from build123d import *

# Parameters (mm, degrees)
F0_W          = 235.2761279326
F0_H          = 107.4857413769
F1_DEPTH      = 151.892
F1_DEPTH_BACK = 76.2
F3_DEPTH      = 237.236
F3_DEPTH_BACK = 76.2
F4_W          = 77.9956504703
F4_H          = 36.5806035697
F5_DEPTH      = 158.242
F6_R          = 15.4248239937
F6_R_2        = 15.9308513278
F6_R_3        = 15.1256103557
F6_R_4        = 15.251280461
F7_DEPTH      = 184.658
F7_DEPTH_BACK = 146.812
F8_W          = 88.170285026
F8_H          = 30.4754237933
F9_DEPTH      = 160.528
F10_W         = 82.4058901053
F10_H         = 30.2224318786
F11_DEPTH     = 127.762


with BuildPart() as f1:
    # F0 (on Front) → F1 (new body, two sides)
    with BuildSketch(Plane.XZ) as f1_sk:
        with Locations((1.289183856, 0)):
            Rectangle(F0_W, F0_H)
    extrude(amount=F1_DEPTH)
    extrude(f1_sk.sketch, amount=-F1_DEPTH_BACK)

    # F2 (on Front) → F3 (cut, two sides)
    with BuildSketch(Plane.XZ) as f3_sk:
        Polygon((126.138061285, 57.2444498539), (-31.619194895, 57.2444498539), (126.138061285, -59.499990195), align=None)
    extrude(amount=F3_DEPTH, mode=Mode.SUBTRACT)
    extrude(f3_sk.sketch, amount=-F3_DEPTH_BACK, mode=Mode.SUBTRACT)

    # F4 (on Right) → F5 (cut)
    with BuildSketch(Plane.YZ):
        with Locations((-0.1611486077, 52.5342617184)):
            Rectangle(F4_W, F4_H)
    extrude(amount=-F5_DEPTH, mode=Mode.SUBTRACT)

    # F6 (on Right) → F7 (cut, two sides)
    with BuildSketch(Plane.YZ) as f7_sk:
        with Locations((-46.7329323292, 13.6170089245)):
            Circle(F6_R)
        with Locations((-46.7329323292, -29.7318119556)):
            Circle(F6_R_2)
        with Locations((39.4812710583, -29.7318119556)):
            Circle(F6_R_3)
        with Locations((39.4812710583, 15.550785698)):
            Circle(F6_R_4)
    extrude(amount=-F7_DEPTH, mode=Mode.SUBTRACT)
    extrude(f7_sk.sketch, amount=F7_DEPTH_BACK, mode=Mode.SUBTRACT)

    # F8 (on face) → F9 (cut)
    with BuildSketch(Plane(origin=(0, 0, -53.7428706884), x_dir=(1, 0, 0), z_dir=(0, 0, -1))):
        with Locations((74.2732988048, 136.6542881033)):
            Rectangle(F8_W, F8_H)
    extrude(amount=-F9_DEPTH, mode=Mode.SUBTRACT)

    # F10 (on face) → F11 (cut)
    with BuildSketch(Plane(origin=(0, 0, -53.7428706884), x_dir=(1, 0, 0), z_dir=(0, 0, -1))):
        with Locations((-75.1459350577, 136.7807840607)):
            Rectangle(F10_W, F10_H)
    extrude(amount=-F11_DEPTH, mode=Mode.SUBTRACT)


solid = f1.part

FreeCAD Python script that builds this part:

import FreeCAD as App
import Part
import Sketcher
Q = App.Units.Quantity


def add_polygon(sketch, points):
    """Adds a closed chain of lines whose ends are joined by coincident constraints."""
    first, n = sketch.GeometryCount, len(points)
    for a, b in zip(points, points[1:] + points[:1]):
        sketch.addGeometry(Part.LineSegment(App.Vector(*a, 0), App.Vector(*b, 0)), False)
    for i in range(n):
        sketch.addConstraint(Sketcher.Constraint("Coincident", first + i, 2, first + (i + 1) % n, 1))

doc = App.newDocument("Part")
body = doc.addObject("PartDesign::Body", "Body")

# Sketch on XZ plane
sketch1 = body.newObject("Sketcher::SketchObject", "Sketch")
sketch1.AttachmentSupport = (doc.getObject("XZ_Plane"), [""])
sketch1.MapMode = "FlatFace"
add_polygon(sketch1, [(-116.34888, 53.742871), (-116.34888, -53.742871), (118.927248, -53.742871), (118.927248, 53.742871)])  # lines 0-3
sketch1.addConstraint([
    Sketcher.Constraint("Vertical", 0),
    Sketcher.Constraint("Horizontal", 1),
    Sketcher.Constraint("Vertical", 2),
    Sketcher.Constraint("Horizontal", 3),
    Sketcher.Constraint("DistanceY", 0, 2, 0, 1, Q("107.485741 mm")),
    Sketcher.Constraint("DistanceX", 1, 1, 1, 2, Q("235.276128 mm")),
    Sketcher.Constraint("DistanceX", 0, 2, -1, 1, Q("116.34888 mm")),
    Sketcher.Constraint("DistanceY", 0, 2, -1, 1, Q("53.742871 mm")),
])
pad1 = body.newObject("PartDesign::Pad", "Pad")
pad1.Profile = sketch1
pad1.Type = "TwoLengths"
pad1.Length = Q("5.98 in")
pad1.Length2 = Q("3 in")

# Sketch on XZ plane
sketch2 = body.newObject("Sketcher::SketchObject", "Sketch001")
sketch2.AttachmentSupport = (doc.getObject("XZ_Plane"), [""])
sketch2.MapMode = "FlatFace"
add_polygon(sketch2, [(126.138061, 57.24445), (-31.619195, 57.24445), (126.138061, -59.49999)])  # lines 0-2
sketch2.addConstraint([
    Sketcher.Constraint("Horizontal", 0),
    Sketcher.Constraint("Vertical", 2),
    Sketcher.Constraint("DistanceY", 2, 1, 2, 2, Q("116.74444 mm")),
    Sketcher.Constraint("DistanceX", 0, 2, 0, 1, Q("157.757256 mm")),
    Sketcher.Constraint("DistanceY", -1, 1, 0, 2, Q("57.24445 mm")),
    Sketcher.Constraint("DistanceX", -1, 1, 1, 2, Q("126.138061 mm")),
])
pocket1 = body.newObject("PartDesign::Pocket", "Pocket")
pocket1.Profile = sketch2
pocket1.Type = "ThroughAll"
pocket1.Midplane = True

# Sketch on YZ plane
sketch3 = body.newObject("Sketcher::SketchObject", "Sketch002")
sketch3.AttachmentSupport = (doc.getObject("YZ_Plane"), [""])
sketch3.MapMode = "FlatFace"
add_polygon(sketch3, [(-39.158974, 70.824564), (-39.158974, 34.24396), (38.836677, 34.24396), (38.836677, 70.824564)])  # lines 0-3
sketch3.addConstraint([
    Sketcher.Constraint("Vertical", 0),
    Sketcher.Constraint("Horizontal", 1),
    Sketcher.Constraint("Vertical", 2),
    Sketcher.Constraint("Horizontal", 3),
    Sketcher.Constraint("DistanceX", 1, 1, 1, 2, Q("77.99565 mm")),
    Sketcher.Constraint("DistanceY", 0, 2, 0, 1, Q("36.580604 mm")),
    Sketcher.Constraint("DistanceY", -1, 1, 0, 2, Q("34.24396 mm")),
    Sketcher.Constraint("DistanceX", 0, 2, -1, 1, Q("39.158974 mm")),
])
pocket2 = body.newObject("PartDesign::Pocket", "Pocket001")
pocket2.Profile = sketch3
pocket2.Length = Q("6.23 in")

# Sketch on YZ plane
sketch4 = body.newObject("Sketcher::SketchObject", "Sketch003")
sketch4.AttachmentSupport = (doc.getObject("YZ_Plane"), [""])
sketch4.MapMode = "FlatFace"
sketch4.addGeometry([
    Part.Circle(App.Vector(-46.732932, 13.617009, 0), App.Vector(0, 0, 1), 15.424824),
    Part.Circle(App.Vector(-46.732932, -29.731812, 0), App.Vector(0, 0, 1), 15.930851),
    Part.Circle(App.Vector(39.481271, -29.731812, 0), App.Vector(0, 0, 1), 15.12561),
    Part.Circle(App.Vector(39.481271, 15.550786, 0), App.Vector(0, 0, 1), 15.25128),
], False)
sketch4.addConstraint([
    Sketcher.Constraint("Horizontal", 1, 3, 2, 3),
    Sketcher.Constraint("Vertical", 0, 3, 1, 3),
    Sketcher.Constraint("Vertical", 2, 3, 3, 3),
    Sketcher.Constraint("Diameter", 2, Q("30.251221 mm")),
    Sketcher.Constraint("Diameter", 3, Q("30.502561 mm")),
    Sketcher.Constraint("Diameter", 0, Q("30.849648 mm")),
    Sketcher.Constraint("Diameter", 1, Q("31.861703 mm")),
    Sketcher.Constraint("DistanceY", -1, 1, 0, 3, Q("13.617009 mm")),
    Sketcher.Constraint("DistanceY", 1, 3, -1, 1, Q("29.731812 mm")),
    Sketcher.Constraint("DistanceX", -1, 1, 2, 3, Q("39.481271 mm")),
    Sketcher.Constraint("DistanceX", 0, 3, -1, 1, Q("46.732932 mm")),
    Sketcher.Constraint("DistanceY", -1, 1, 3, 3, Q("15.550786 mm")),
])
pocket3 = body.newObject("PartDesign::Pocket", "Pocket002")
pocket3.Profile = sketch4
pocket3.Type = "ThroughAll"
pocket3.Midplane = True

# Sketch on XY plane
sketch5 = body.newObject("Sketcher::SketchObject", "Sketch004")
sketch5.AttachmentSupport = (doc.getObject("XY_Plane"), [""])
sketch5.MapMode = "FlatFace"
sketch5.AttachmentOffset = App.Placement(App.Vector(0, 0, -53.742871), App.Rotation())
add_polygon(sketch5, [(30.188156, -151.892), (30.188156, -121.416576), (118.358441, -121.416576), (118.358441, -151.892)])  # lines 0-3
sketch5.addConstraint([
    Sketcher.Constraint("Vertical", 0),
    Sketcher.Constraint("Horizontal", 1),
    Sketcher.Constraint("Vertical", 2),
    Sketcher.Constraint("Horizontal", 3),
    Sketcher.Constraint("DistanceY", 2, 2, -1, 1, Q("5.98 in")),
    Sketcher.Constraint("DistanceX", 1, 1, 1, 2, Q("88.170285 mm")),
    Sketcher.Constraint("DistanceY", 0, 1, 0, 2, Q("30.475424 mm")),
    Sketcher.Constraint("DistanceX", -1, 1, 1, 2, Q("118.358441 mm")),
])
pocket4 = body.newObject("PartDesign::Pocket", "Pocket003")
pocket4.Profile = sketch5
pocket4.Length = Q("6.32 in")
pocket4.Reversed = True

# Sketch on XY plane
sketch6 = body.newObject("Sketcher::SketchObject", "Sketch005")
sketch6.AttachmentSupport = (doc.getObject("XY_Plane"), [""])
sketch6.MapMode = "FlatFace"
sketch6.AttachmentOffset = App.Placement(App.Vector(0, 0, -53.742871), App.Rotation())
add_polygon(sketch6, [(-116.34888, -151.892), (-116.34888, -121.669568), (-33.94299, -121.669568), (-33.94299, -151.892)])  # lines 0-3
sketch6.addConstraint([
    Sketcher.Constraint("Vertical", 0),
    Sketcher.Constraint("Horizontal", 1),
    Sketcher.Constraint("Vertical", 2),
    Sketcher.Constraint("Horizontal", 3),
    Sketcher.Constraint("DistanceY", 2, 2, -1, 1, Q("5.98 in")),
    Sketcher.Constraint("DistanceX", 1, 1, 1, 2, Q("82.40589 mm")),
    Sketcher.Constraint("DistanceY", 0, 1, 0, 2, Q("30.222432 mm")),
    Sketcher.Constraint("DistanceX", 0, 2, -1, 1, Q("116.34888 mm")),
])
pocket5 = body.newObject("PartDesign::Pocket", "Pocket004")
pocket5.Profile = sketch6
pocket5.Length = Q("5.03 in")
pocket5.Reversed = True

doc.recompute()
